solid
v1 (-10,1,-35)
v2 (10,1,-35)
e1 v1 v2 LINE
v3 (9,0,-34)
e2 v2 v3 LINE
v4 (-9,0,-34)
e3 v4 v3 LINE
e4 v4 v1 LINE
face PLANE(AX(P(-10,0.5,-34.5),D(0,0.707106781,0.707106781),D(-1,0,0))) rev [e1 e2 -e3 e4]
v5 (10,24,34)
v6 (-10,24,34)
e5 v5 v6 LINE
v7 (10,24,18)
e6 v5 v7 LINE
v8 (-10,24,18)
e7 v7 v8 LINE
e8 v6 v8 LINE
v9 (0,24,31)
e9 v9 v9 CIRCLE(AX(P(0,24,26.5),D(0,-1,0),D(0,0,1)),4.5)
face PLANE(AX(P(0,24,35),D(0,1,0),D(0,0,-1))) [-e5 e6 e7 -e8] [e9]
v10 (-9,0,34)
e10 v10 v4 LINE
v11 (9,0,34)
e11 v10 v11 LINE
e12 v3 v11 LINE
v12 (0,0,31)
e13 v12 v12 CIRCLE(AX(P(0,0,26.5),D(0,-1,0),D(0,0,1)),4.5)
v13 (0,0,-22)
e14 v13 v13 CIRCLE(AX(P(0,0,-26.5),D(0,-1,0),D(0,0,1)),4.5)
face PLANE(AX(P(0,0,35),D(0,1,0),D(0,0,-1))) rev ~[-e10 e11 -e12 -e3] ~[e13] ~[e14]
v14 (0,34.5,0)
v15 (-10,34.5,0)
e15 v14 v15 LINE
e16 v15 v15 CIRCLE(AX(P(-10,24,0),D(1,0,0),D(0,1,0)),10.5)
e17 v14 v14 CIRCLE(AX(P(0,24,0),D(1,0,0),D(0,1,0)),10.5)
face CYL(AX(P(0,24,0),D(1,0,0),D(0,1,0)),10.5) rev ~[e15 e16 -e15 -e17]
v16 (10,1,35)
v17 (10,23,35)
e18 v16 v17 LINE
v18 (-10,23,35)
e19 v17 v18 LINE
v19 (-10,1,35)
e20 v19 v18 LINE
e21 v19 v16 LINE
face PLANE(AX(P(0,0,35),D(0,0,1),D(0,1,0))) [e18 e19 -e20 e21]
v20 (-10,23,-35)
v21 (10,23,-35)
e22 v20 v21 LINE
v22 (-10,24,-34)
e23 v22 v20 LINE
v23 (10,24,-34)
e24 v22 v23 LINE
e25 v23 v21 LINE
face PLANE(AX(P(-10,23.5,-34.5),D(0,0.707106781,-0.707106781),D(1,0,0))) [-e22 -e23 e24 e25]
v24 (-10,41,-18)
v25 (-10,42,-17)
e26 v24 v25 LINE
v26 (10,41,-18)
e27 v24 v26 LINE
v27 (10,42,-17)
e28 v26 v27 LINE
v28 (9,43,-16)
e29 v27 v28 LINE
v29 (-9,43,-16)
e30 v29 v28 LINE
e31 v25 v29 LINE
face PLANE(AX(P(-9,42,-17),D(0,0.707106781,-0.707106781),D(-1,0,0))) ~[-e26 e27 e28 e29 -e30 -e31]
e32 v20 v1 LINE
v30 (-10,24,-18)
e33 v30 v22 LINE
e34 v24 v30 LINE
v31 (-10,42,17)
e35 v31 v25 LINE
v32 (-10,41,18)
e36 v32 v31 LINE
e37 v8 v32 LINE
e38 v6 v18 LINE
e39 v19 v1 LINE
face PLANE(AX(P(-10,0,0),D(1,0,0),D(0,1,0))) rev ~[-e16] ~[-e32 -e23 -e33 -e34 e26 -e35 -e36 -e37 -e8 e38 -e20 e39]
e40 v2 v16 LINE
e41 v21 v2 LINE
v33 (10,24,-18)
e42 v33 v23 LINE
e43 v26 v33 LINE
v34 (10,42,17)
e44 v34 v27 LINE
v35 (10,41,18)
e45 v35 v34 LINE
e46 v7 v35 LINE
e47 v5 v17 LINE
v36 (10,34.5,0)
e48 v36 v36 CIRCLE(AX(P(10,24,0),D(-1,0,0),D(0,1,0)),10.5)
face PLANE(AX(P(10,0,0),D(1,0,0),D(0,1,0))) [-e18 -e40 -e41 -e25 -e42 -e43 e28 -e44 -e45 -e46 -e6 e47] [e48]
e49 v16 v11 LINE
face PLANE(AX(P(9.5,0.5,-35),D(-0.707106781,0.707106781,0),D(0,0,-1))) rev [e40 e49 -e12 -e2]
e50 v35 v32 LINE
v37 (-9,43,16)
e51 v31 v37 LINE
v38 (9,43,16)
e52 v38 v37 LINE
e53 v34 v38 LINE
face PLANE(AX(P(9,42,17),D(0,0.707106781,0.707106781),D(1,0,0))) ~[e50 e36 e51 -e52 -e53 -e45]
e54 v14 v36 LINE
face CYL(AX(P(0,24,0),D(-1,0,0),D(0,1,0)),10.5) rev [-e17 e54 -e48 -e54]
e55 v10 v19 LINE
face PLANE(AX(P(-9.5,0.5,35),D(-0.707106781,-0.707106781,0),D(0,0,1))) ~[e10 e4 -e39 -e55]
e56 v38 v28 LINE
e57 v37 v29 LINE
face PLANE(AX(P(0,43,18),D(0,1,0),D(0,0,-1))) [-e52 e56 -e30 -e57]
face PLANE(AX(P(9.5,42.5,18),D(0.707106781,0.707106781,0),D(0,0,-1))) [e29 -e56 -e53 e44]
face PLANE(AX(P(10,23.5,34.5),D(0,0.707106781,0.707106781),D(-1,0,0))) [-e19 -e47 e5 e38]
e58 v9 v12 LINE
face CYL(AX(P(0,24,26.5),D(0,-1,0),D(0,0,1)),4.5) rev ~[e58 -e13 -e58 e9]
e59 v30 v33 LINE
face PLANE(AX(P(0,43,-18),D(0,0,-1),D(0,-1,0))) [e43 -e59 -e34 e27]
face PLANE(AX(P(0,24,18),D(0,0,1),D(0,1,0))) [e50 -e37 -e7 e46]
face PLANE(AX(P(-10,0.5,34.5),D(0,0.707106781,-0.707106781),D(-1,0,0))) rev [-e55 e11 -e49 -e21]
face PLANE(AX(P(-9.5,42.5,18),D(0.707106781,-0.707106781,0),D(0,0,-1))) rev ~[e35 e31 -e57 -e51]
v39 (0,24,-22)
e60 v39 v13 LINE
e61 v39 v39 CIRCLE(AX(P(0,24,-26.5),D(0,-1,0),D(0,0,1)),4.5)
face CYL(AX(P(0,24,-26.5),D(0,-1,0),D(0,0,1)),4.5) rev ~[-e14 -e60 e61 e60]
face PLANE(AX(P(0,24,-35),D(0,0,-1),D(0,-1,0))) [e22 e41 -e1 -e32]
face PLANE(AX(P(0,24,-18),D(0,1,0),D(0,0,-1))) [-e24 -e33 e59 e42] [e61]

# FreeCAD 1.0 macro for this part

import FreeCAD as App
import Part
import Sketcher

V = App.Vector
Q = App.Units.Quantity


def edges_at(feature, points):
    """Names of the edges that pass closest to the given points."""
    edges = feature.Shape.Edges
    near = lambda p: min(range(len(edges)), key=lambda i: edges[i].distToShape(Part.Vertex(*p))[0])
    return sorted({f"Edge{near(p) + 1}" for p in points})


def add_polygon(sketch, points):
    """Adds a closed chain of lines whose ends are joined by coincident constraints."""
    first, n = sketch.GeometryCount, len(points)
    for a, b in zip(points, points[1:] + points[:1]):
        sketch.addGeometry(Part.LineSegment(App.Vector(*a, 0), App.Vector(*b, 0)), False)
    for i in range(n):
        sketch.addConstraint(Sketcher.Constraint("Coincident", first + i, 2, first + (i + 1) % n, 1))

doc = App.newDocument("Part")
body = doc.addObject("PartDesign::Body", "Body")

sketch1 = body.newObject("Sketcher::SketchObject", "Sketch")
sketch1.AttachmentSupport = (doc.getObject("YZ_Plane"), [""])
sketch1.MapMode = "FlatFace"
add_polygon(sketch1, [(24, 35), (0, 35), (0, -35), (24, -35), (24, -18), (43, -18), (43, 18), (24, 18)])
sketch1.addGeometry(Part.Circle(V(24, 0, 0), V(0, 0, 1), 10), False)
sketch1.addConstraint(Sketcher.Constraint("Horizontal", 0))
sketch1.addConstraint(Sketcher.Constraint("Vertical", 1))
sketch1.addConstraint(Sketcher.Constraint("Horizontal", 2))
sketch1.addConstraint(Sketcher.Constraint("Vertical", 3))
sketch1.addConstraint(Sketcher.Constraint("Horizontal", 4))
sketch1.addConstraint(Sketcher.Constraint("Vertical", 5))
sketch1.addConstraint(Sketcher.Constraint("Horizontal", 6))
sketch1.addConstraint(Sketcher.Constraint("Vertical", 7))
sketch1.addConstraint(Sketcher.Constraint("Symmetric", 0, 2, 1, 2, -1, 1))
sketch1.addConstraint(Sketcher.Constraint("Symmetric", 3, 2, 6, 2, -1))
sketch1.addConstraint(Sketcher.Constraint("PointOnObject", 8, 3, -1))
sketch1.addConstraint(Sketcher.Constraint("Vertical", 8, 3, 2, 2))
sketch1.addConstraint(Sketcher.Constraint("Diameter", 8, Q("21 mm")))
sketch1.addConstraint(Sketcher.Constraint("DistanceX", 0, 2, 0, 1, Q("24 mm")))
sketch1.addConstraint(Sketcher.Constraint("DistanceX", 4, 1, 4, 2, Q("19 mm")))
sketch1.addConstraint(Sketcher.Constraint("DistanceY", 1, 2, 1, 1, Q("70 mm")))
sketch1.addConstraint(Sketcher.Constraint("DistanceY", 5, 1, 5, 2, Q("36 mm")))
pad1 = body.newObject("PartDesign::Pad", "Pad")
pad1.Profile = sketch1
pad1.Length = 20
pad1.Midplane = True

sketch2 = body.newObject("Sketcher::SketchObject", "Sketch001")
sketch2.AttachmentSupport = (doc.getObject("XZ_Plane"), [""])
sketch2.MapMode = "FlatFace"
sketch2.AttachmentOffset = App.Placement(V(0, 0, -24), App.Rotation())
sketch2.addGeometry(Part.Circle(V(0, 26.5, 0), V(0, 0, 1), 4.5), False)
sketch2.addGeometry(Part.Circle(V(0, -26.5, 0), V(0, 0, 1), 4.5), False)
sketch2.addConstraint(Sketcher.Constraint("Equal", 0, 1))
sketch2.addConstraint(Sketcher.Constraint("Symmetric", 0, 3, 1, 3, -1, 1))
sketch2.addConstraint(Sketcher.Constraint("PointOnObject", 0, 3, -2))
sketch2.addConstraint(Sketcher.Constraint("Diameter", 0, Q("9 mm")))
sketch2.addConstraint(Sketcher.Constraint("DistanceY", 1, 3, 0, 3, Q("53 mm")))
doc.recompute()
hole = body.newObject("PartDesign::Hole", "Hole")
hole.Profile = sketch2
hole.ThreadType = "None"
hole.Diameter = 9
hole.DepthType = "ThroughAll"
hole.Reversed = True
doc.recompute()

chamfer = body.newObject("PartDesign::Chamfer", "Chamfer")
chamfer.Base = (hole, edges_at(hole, [(-10, 43, 0), (10, 43, 0)]))
chamfer.Size = 1
doc.recompute()

chamfer2 = body.newObject("PartDesign::Chamfer", "Chamfer001")
chamfer2.Base = (chamfer, edges_at(chamfer, [
    (0, 24, 35),
    (0, 24, -35),
    (-10, 0, 0),
    (0, 0, -35),
    (10, 0, 0),
    (0, 0, 35),
]))
chamfer2.Size = 1
doc.recompute()

chamfer3 = body.newObject("PartDesign::Chamfer", "Chamfer002")
chamfer3.Base = (chamfer2, edges_at(chamfer2, [(0, 43, -18), (0, 43, 18)]))
chamfer3.Size = 2

doc.recompute()
